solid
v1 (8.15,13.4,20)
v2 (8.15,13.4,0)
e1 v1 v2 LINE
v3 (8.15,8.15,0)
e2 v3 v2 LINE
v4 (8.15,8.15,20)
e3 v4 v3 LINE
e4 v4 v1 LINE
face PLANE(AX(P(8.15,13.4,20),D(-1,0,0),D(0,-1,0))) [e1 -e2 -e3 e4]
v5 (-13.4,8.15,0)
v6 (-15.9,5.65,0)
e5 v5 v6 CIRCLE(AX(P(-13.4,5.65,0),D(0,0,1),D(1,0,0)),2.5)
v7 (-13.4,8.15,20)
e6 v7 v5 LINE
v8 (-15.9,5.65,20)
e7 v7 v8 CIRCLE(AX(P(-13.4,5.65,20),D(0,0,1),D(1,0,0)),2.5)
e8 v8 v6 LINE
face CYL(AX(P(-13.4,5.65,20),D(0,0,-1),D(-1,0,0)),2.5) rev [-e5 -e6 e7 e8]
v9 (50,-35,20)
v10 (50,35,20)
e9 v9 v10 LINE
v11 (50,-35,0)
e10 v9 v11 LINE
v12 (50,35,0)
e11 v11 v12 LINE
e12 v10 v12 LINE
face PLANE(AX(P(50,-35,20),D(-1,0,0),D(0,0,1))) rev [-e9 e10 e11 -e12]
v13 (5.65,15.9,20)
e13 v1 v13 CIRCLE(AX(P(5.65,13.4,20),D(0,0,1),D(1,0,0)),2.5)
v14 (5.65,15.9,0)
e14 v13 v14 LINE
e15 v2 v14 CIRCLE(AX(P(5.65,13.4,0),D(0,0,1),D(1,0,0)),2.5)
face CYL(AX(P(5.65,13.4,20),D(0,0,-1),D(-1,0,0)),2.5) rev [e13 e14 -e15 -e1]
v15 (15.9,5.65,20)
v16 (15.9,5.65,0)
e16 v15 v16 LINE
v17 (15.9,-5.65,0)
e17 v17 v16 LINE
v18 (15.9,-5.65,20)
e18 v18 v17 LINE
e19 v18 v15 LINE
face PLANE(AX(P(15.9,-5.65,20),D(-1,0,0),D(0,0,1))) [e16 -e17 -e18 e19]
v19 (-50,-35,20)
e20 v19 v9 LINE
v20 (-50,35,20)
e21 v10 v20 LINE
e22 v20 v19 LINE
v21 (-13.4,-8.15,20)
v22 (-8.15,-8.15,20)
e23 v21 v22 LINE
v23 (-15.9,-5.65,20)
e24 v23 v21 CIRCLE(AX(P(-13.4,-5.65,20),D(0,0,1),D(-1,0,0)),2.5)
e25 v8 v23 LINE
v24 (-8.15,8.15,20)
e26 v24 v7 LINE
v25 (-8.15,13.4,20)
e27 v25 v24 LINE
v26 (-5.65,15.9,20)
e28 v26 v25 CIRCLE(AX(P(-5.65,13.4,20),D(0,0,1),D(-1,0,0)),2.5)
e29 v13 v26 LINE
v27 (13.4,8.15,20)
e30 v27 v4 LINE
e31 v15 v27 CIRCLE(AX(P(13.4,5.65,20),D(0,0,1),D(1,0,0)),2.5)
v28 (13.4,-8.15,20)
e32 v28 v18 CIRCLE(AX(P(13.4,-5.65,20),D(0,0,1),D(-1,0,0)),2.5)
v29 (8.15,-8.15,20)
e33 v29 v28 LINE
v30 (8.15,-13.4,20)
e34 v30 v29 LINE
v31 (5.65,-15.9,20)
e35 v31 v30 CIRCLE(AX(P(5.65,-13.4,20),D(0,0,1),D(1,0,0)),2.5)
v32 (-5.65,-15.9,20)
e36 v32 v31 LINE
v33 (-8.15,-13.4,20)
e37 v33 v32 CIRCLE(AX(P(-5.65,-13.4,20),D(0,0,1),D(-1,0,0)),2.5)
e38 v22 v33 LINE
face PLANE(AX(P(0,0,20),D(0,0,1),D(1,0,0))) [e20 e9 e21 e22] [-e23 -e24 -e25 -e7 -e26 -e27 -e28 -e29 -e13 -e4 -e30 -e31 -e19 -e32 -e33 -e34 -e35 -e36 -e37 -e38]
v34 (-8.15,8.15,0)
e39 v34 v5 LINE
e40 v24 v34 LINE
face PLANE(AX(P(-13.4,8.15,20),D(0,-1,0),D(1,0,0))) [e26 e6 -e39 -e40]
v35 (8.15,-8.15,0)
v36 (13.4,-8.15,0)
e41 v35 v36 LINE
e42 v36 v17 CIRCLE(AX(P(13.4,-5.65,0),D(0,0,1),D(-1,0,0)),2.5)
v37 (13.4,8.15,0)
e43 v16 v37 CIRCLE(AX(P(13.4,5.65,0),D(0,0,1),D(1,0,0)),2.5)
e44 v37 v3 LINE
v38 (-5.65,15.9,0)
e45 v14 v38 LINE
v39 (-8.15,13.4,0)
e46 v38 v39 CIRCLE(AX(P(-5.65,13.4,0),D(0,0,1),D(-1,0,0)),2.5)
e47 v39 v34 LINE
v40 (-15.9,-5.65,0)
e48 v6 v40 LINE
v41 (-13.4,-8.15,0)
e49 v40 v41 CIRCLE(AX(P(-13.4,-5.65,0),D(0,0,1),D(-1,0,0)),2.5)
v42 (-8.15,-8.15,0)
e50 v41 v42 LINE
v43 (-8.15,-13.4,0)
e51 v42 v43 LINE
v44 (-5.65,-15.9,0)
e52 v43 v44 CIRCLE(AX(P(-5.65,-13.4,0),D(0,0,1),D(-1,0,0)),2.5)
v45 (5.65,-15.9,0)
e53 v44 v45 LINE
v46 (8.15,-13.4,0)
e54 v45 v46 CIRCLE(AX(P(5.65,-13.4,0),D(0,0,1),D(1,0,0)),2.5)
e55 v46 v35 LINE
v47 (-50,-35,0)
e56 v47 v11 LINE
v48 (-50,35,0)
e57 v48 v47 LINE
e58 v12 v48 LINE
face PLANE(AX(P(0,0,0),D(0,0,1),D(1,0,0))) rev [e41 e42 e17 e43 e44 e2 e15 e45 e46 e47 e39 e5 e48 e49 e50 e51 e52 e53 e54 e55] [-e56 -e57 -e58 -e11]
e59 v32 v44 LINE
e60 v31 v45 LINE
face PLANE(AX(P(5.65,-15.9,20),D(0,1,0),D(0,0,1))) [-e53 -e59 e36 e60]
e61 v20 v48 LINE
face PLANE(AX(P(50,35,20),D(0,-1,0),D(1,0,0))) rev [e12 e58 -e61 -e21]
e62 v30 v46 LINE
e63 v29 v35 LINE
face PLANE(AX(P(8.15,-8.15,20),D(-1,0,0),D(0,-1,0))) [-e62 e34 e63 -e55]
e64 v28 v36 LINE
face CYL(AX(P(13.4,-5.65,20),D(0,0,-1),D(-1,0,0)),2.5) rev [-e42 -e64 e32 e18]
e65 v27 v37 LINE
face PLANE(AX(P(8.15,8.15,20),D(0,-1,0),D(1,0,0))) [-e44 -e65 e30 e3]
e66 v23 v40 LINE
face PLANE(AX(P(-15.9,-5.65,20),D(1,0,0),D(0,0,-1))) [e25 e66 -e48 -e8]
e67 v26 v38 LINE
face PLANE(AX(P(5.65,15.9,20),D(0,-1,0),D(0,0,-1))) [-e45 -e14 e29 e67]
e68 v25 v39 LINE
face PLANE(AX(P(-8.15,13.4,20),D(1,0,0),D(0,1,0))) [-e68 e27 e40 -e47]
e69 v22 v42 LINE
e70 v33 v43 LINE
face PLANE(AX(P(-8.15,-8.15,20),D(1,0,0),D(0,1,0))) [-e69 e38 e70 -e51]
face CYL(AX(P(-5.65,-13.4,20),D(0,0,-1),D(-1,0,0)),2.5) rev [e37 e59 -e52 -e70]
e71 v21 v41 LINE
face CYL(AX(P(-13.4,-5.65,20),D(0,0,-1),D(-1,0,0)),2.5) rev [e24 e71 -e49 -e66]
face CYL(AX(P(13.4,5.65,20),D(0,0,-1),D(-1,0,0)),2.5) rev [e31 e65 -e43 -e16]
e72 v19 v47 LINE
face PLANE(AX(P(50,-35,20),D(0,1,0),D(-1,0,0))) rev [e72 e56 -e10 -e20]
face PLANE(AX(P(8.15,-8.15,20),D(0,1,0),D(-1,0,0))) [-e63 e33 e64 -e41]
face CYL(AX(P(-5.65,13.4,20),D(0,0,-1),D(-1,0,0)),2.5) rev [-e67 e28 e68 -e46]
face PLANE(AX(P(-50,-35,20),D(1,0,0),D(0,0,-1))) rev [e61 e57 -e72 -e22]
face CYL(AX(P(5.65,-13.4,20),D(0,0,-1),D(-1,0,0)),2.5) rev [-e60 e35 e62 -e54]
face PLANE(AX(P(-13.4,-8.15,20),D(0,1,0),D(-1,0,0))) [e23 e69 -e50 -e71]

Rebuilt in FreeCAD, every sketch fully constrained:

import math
import FreeCAD as App
import Part
import Sketcher
Q = App.Units.Quantity

doc = App.newDocument("Part")
body = doc.addObject("PartDesign::Body", "Body")

# Sketch on XY plane
sketch1 = body.newObject("Sketcher::SketchObject", "Sketch")
sketch1.AttachmentSupport = (doc.getObject("XY_Plane"), [""])
sketch1.MapMode = "FlatFace"
sketch1.addGeometry([
    Part.LineSegment(App.Vector(-50, 35, 0), App.Vector(-50, -35, 0)),  # 0
    Part.LineSegment(App.Vector(-50, -35, 0), App.Vector(50, -35, 0)),  # 1
    Part.LineSegment(App.Vector(50, -35, 0), App.Vector(50, 35, 0)),  # 2
    Part.LineSegment(App.Vector(50, 35, 0), App.Vector(-50, 35, 0)),  # 3
    Part.LineSegment(App.Vector(-8.2, 8.2, 0), App.Vector(-8.2, 13.4, 0)),  # 4
    Part.ArcOfCircle(Part.Circle(App.Vector(-5.7, 13.4, 0), App.Vector(0, 0, 1), 2.5), math.radians(90), math.radians(180)),  # 5
    Part.LineSegment(App.Vector(-5.7, 15.9, 0), App.Vector(5.7, 15.9, 0)),  # 6
    Part.ArcOfCircle(Part.Circle(App.Vector(5.7, 13.4, 0), App.Vector(0, 0, 1), 2.5), math.radians(0), math.radians(90)),  # 7
    Part.LineSegment(App.Vector(8.2, 13.4, 0), App.Vector(8.2, 8.2, 0)),  # 8
    Part.LineSegment(App.Vector(8.2, 8.2, 0), App.Vector(13.4, 8.2, 0)),  # 9
    Part.ArcOfCircle(Part.Circle(App.Vector(13.4, 5.7, 0), App.Vector(0, 0, 1), 2.5), math.radians(0), math.radians(90)),  # 10
    Part.LineSegment(App.Vector(15.9, 5.7, 0), App.Vector(15.9, -5.7, 0)),  # 11
    Part.ArcOfCircle(Part.Circle(App.Vector(13.4, -5.7, 0), App.Vector(0, 0, 1), 2.5), math.radians(-90), math.radians(0)),  # 12
    Part.LineSegment(App.Vector(13.4, -8.2, 0), App.Vector(8.2, -8.2, 0)),  # 13
    Part.LineSegment(App.Vector(8.2, -8.2, 0), App.Vector(8.2, -13.4, 0)),  # 14
    Part.ArcOfCircle(Part.Circle(App.Vector(5.7, -13.4, 0), App.Vector(0, 0, 1), 2.5), math.radians(-90), math.radians(0)),  # 15
    Part.LineSegment(App.Vector(5.7, -15.9, 0), App.Vector(-5.7, -15.9, 0)),  # 16
    Part.ArcOfCircle(Part.Circle(App.Vector(-5.7, -13.4, 0), App.Vector(0, 0, 1), 2.5), math.radians(180), math.radians(270)),  # 17
    Part.LineSegment(App.Vector(-8.2, -13.4, 0), App.Vector(-8.2, -8.2, 0)),  # 18
    Part.LineSegment(App.Vector(-8.2, -8.2, 0), App.Vector(-13.4, -8.2, 0)),  # 19
    Part.ArcOfCircle(Part.Circle(App.Vector(-13.4, -5.7, 0), App.Vector(0, 0, 1), 2.5), math.radians(180), math.radians(270)),  # 20
    Part.LineSegment(App.Vector(-15.9, -5.7, 0), App.Vector(-15.9, 5.7, 0)),  # 21
    Part.ArcOfCircle(Part.Circle(App.Vector(-13.4, 5.7, 0), App.Vector(0, 0, 1), 2.5), math.radians(90), math.radians(180)),  # 22
    Part.LineSegment(App.Vector(-13.4, 8.2, 0), App.Vector(-8.2, 8.2, 0)),  # 23
], False)
sketch1.addConstraint([
    Sketcher.Constraint("Coincident", 0, 2, 1, 1),
    Sketcher.Constraint("Coincident", 1, 2, 2, 1),
    Sketcher.Constraint("Coincident", 2, 2, 3, 1),
    Sketcher.Constraint("Coincident", 3, 2, 0, 1),
    Sketcher.Constraint("Tangent", 4, 2, 5, 2),
    Sketcher.Constraint("Tangent", 5, 1, 6, 1),
    Sketcher.Constraint("Tangent", 6, 2, 7, 2),
    Sketcher.Constraint("Tangent", 7, 1, 8, 1),
    Sketcher.Constraint("Coincident", 8, 2, 9, 1),
    Sketcher.Constraint("Tangent", 9, 2, 10, 2),
    Sketcher.Constraint("Tangent", 10, 1, 11, 1),
    Sketcher.Constraint("Tangent", 11, 2, 12, 2),
    Sketcher.Constraint("Tangent", 12, 1, 13, 1),
    Sketcher.Constraint("Coincident", 13, 2, 14, 1),
    Sketcher.Constraint("Tangent", 14, 2, 15, 2),
    Sketcher.Constraint("Tangent", 15, 1, 16, 1),
    Sketcher.Constraint("Tangent", 16, 2, 17, 2),
    Sketcher.Constraint("Tangent", 17, 1, 18, 1),
    Sketcher.Constraint("Coincident", 18, 2, 19, 1),
    Sketcher.Constraint("Tangent", 19, 2, 20, 2),
    Sketcher.Constraint("Tangent", 20, 1, 21, 1),
    Sketcher.Constraint("Tangent", 21, 2, 22, 2),
    Sketcher.Constraint("Tangent", 22, 1, 23, 1),
    Sketcher.Constraint("Coincident", 23, 2, 4, 1),
    Sketcher.Constraint("Vertical", 0),
    Sketcher.Constraint("Horizontal", 1),
    Sketcher.Constraint("Vertical", 2),
    Sketcher.Constraint("Horizontal", 3),
    Sketcher.Constraint("Vertical", 4),
    Sketcher.Constraint("Horizontal", 6),
    Sketcher.Constraint("Vertical", 8),
    Sketcher.Constraint("Horizontal", 9),
    Sketcher.Constraint("Vertical", 11),
    Sketcher.Constraint("Horizontal", 13),
    Sketcher.Constraint("Vertical", 14),
    Sketcher.Constraint("Horizontal", 16),
    Sketcher.Constraint("Vertical", 18),
    Sketcher.Constraint("Horizontal", 19),
    Sketcher.Constraint("Vertical", 21),
    Sketcher.Constraint("Horizontal", 23),
    Sketcher.Constraint("Equal", 5, 7),
    Sketcher.Constraint("Equal", 7, 10),
    Sketcher.Constraint("Equal", 10, 12),
    Sketcher.Constraint("Equal", 12, 15),
    Sketcher.Constraint("Equal", 15, 17),
    Sketcher.Constraint("Equal", 17, 20),
    Sketcher.Constraint("Equal", 20, 22),
    Sketcher.Constraint("Symmetric", 5, 3, 15, 3, -1, 1),
    Sketcher.Constraint("Symmetric", 10, 3, 20, 3, -1, 1),
    Sketcher.Constraint("Symmetric", 0, 2, 2, 2, -1, 1),
    Sketcher.Constraint("Symmetric", 13, 2, 18, 2, -2),
    Sketcher.Constraint("Symmetric", 8, 2, 23, 2, -2),
    Sketcher.Constraint("Equal", 23, 4),
    Sketcher.Constraint("Equal", 16, 11),
    Sketcher.Constraint("Radius", 5, Q("2.5 mm")),
    Sketcher.Constraint("DistanceX", 1, 1, 1, 2, Q("100 mm")),
    Sketcher.Constraint("DistanceY", 0, 2, 0, 1, Q("70 mm")),
    Sketcher.Constraint("DistanceX", 6, 1, 6, 2, Q("11.3 mm")),
    Sketcher.Constraint("DistanceX", 9, 1, 9, 2, Q("5.25 mm")),
])
pad1 = body.newObject("PartDesign::Pad", "Pad")
pad1.Profile = sketch1
pad1.Length = 20

doc.recompute()
